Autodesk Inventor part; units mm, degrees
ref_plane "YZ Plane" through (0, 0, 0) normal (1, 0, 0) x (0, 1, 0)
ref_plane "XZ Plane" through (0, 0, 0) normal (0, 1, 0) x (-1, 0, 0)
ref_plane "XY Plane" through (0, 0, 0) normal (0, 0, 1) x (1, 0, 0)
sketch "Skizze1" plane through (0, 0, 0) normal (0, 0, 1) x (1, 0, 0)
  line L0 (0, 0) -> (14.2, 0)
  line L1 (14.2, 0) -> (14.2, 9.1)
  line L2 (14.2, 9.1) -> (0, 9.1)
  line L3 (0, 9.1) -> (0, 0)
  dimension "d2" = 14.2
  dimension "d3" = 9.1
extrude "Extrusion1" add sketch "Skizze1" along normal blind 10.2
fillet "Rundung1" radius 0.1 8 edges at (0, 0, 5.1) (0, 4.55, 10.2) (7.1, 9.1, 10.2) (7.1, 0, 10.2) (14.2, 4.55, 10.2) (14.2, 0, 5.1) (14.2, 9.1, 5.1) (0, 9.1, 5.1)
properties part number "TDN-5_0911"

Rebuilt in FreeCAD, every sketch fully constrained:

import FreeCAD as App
import Part
import Sketcher
Q = App.Units.Quantity


def edges_at(feature, points):
    """Names of the edges that pass closest to the given points."""
    edges = feature.Shape.Edges
    near = lambda p: min(range(len(edges)), key=lambda i: edges[i].distToShape(Part.Vertex(*p))[0])
    return sorted({f"Edge{near(p) + 1}" for p in points})


def add_polygon(sketch, points):
    """Adds a closed chain of lines whose ends are joined by coincident constraints."""
    first, n = sketch.GeometryCount, len(points)
    for a, b in zip(points, points[1:] + points[:1]):
        sketch.addGeometry(Part.LineSegment(App.Vector(*a, 0), App.Vector(*b, 0)), False)
    for i in range(n):
        sketch.addConstraint(Sketcher.Constraint("Coincident", first + i, 2, first + (i + 1) % n, 1))

doc = App.newDocument("Part")
body = doc.addObject("PartDesign::Body", "Body")

sketch1 = body.newObject("Sketcher::SketchObject", "Sketch")
sketch1.AttachmentSupport = (doc.getObject("XY_Plane"), [""])
sketch1.MapMode = "FlatFace"
add_polygon(sketch1, [(0, 9.1), (0, 0), (14.2, 0), (14.2, 9.1)])
sketch1.addConstraint([
    Sketcher.Constraint("Vertical", 0),
    Sketcher.Constraint("Horizontal", 1),
    Sketcher.Constraint("Vertical", 2),
    Sketcher.Constraint("Horizontal", 3),
    Sketcher.Constraint("Coincident", 0, 2, -1, 1),
    Sketcher.Constraint("DistanceX", 1, 1, 1, 2, Q("14.2 mm")),
    Sketcher.Constraint("DistanceY", 0, 2, 0, 1, Q("9.1 mm")),
])
pad1 = body.newObject("PartDesign::Pad", "Pad")
pad1.Profile = sketch1
pad1.Length = 10.2
doc.recompute()

fillet = body.newObject("PartDesign::Fillet", "Fillet")
fillet.Base = (pad1, edges_at(pad1, [
    (0, 0, 5.1),
    (0, 4.55, 10.2),
    (7.1, 9.1, 10.2),
    (7.1, 0, 10.2),
    (14.2, 4.55, 10.2),
    (14.2, 0, 5.1),
    (14.2, 9.1, 5.1),
    (0, 9.1, 5.1),
]))
fillet.Radius = 0.1

doc.recompute()
